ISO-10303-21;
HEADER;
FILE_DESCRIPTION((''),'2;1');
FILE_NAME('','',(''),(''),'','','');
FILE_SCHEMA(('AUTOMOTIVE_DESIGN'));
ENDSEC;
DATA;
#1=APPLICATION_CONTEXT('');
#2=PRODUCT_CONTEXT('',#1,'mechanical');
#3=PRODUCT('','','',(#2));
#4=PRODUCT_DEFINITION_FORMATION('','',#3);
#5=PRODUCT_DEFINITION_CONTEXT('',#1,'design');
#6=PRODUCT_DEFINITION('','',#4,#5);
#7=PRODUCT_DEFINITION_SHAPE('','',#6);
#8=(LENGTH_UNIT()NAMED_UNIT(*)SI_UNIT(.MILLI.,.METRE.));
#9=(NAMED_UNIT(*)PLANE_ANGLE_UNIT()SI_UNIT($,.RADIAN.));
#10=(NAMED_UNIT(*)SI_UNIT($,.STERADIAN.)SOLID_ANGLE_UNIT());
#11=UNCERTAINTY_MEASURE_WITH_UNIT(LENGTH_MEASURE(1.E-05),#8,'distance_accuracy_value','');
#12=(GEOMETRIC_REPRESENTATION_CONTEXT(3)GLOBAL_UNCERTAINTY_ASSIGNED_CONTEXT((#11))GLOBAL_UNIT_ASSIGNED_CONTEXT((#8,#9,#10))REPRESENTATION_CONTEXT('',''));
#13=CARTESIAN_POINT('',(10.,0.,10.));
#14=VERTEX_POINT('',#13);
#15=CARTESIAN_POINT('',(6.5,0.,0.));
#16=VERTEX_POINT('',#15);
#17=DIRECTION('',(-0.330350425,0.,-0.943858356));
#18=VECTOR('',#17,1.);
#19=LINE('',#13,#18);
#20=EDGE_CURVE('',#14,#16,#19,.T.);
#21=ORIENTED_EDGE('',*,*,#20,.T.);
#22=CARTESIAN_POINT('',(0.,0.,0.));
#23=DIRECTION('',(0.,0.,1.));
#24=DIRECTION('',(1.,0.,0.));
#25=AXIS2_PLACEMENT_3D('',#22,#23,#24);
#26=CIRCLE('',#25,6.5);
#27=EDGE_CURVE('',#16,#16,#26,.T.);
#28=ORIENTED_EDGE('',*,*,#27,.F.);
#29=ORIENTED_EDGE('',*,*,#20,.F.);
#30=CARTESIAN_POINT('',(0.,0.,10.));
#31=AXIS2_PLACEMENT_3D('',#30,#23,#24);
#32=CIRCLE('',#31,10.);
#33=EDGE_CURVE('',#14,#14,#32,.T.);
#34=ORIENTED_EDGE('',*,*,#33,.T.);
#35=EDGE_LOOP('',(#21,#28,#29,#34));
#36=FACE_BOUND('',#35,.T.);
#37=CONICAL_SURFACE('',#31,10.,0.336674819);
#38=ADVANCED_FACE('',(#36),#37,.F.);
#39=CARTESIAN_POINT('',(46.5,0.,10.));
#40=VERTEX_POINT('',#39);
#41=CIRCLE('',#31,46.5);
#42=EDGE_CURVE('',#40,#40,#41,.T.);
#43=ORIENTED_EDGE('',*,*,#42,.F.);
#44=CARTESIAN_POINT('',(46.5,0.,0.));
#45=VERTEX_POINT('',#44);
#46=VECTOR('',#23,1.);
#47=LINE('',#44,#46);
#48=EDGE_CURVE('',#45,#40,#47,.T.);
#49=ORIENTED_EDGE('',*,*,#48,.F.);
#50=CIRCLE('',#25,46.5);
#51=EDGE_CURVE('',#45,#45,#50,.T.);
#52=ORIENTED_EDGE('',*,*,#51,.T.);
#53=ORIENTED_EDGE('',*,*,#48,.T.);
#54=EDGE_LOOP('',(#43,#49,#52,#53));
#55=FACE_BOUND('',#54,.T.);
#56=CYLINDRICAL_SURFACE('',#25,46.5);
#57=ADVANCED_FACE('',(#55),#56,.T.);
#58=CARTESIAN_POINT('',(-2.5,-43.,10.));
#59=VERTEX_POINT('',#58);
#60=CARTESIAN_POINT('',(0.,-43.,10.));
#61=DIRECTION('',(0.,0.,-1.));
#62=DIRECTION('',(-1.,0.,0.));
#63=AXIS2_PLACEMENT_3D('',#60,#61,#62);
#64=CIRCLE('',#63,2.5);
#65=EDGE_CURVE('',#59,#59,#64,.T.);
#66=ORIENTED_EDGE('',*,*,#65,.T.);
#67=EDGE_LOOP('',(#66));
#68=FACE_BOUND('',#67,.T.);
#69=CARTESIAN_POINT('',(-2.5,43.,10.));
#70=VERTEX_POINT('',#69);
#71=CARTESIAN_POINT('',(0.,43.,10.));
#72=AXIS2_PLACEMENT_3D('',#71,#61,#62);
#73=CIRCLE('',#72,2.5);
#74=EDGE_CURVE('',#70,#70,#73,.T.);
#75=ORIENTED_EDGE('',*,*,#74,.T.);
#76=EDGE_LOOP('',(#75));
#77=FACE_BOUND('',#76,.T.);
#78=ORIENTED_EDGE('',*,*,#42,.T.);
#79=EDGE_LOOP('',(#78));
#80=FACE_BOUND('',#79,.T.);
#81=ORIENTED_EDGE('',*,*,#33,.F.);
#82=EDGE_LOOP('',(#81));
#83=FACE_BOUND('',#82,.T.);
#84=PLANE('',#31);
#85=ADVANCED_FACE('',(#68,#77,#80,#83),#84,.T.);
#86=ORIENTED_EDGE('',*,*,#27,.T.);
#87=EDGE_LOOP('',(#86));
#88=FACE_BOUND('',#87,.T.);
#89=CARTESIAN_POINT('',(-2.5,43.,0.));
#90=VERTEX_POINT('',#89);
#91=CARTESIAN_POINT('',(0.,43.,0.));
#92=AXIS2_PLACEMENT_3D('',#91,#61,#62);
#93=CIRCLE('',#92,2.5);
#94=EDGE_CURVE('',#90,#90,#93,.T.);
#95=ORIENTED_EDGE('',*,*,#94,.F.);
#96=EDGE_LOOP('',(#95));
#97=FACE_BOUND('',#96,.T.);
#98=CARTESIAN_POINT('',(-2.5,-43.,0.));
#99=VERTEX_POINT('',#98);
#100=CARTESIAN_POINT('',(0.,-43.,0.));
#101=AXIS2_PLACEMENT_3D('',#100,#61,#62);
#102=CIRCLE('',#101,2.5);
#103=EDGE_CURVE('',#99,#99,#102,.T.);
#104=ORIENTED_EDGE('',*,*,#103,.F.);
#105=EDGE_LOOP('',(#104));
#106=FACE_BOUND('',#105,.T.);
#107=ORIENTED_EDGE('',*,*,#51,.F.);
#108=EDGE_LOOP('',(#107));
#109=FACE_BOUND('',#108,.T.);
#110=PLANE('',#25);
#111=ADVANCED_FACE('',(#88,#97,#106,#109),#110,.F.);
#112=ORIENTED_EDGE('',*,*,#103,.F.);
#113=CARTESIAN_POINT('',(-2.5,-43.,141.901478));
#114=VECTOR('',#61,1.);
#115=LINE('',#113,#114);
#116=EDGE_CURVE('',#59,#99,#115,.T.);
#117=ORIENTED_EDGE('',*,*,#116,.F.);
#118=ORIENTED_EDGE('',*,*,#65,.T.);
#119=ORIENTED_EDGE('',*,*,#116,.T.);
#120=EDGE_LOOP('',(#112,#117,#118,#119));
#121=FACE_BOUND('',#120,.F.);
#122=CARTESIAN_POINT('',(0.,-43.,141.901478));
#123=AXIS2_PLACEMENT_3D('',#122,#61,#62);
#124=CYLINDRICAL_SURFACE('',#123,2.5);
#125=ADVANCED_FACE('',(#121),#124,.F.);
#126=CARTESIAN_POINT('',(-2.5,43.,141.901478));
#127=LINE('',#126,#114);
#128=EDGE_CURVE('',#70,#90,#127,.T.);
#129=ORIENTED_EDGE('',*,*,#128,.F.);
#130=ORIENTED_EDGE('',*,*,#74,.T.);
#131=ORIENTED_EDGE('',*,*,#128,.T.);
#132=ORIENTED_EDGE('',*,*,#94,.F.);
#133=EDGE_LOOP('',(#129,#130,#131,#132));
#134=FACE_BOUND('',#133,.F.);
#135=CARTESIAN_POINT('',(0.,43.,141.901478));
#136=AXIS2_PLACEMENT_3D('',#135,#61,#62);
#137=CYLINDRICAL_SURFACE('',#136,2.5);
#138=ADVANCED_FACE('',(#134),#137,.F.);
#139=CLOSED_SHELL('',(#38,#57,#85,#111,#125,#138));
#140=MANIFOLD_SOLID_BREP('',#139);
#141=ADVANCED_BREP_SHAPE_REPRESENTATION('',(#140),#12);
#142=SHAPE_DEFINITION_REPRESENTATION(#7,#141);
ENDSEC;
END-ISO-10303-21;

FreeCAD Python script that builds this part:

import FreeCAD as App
import Part
import Sketcher

doc = App.newDocument("Part")
body = doc.addObject("PartDesign::Body", "Body")

sketch1 = body.newObject("Sketcher::SketchObject", "Sketch")
sketch1.AttachmentSupport = (doc.getObject("XZ_Plane"), [""])
sketch1.MapMode = "FlatFace"
sketch1.addGeometry(Part.LineSegment(App.Vector(6.5, 0, 0), App.Vector(46.5, 0, 0)), False)
sketch1.addGeometry(Part.LineSegment(App.Vector(46.5, 0, 0), App.Vector(46.5, 10, 0)), False)
sketch1.addGeometry(Part.LineSegment(App.Vector(46.5, 10, 0), App.Vector(10, 10, 0)), False)
sketch1.addGeometry(Part.LineSegment(App.Vector(10, 10, 0), App.Vector(6.5, 0, 0)), False)
sketch1.addConstraint(Sketcher.Constraint("Coincident", 0, 2, 1, 1))
sketch1.addConstraint(Sketcher.Constraint("Coincident", 1, 2, 2, 1))
sketch1.addConstraint(Sketcher.Constraint("Coincident", 2, 2, 3, 1))
sketch1.addConstraint(Sketcher.Constraint("Coincident", 3, 2, 0, 1))
sketch1.addConstraint(Sketcher.Constraint("Horizontal", 0))
sketch1.addConstraint(Sketcher.Constraint("Vertical", 1))
sketch1.addConstraint(Sketcher.Constraint("Horizontal", 2))
sketch1.addConstraint(Sketcher.Constraint("PointOnObject", 0, 2, -1))
sketch1.addConstraint(Sketcher.Constraint("DistanceX", 0, 1, 0, 2, 40.0))
sketch1.addConstraint(Sketcher.Constraint("DistanceY", 1, 1, 1, 2, 10.0))
sketch1.addConstraint(Sketcher.Constraint("DistanceX", 2, 2, 2, 1, 36.5))
sketch1.addConstraint(Sketcher.Constraint("DistanceX", -1, 1, 2, 2, 10.0))
revolution = body.newObject("PartDesign::Revolution", "Revolution")
revolution.Profile = sketch1
revolution.ReferenceAxis = (sketch1, ["V_Axis"])
revolution.Angle = 360

sketch2 = body.newObject("Sketcher::SketchObject", "Sketch001")
sketch2.AttachmentSupport = (doc.getObject("XY_Plane"), [""])
sketch2.MapMode = "FlatFace"
sketch2.AttachmentOffset = App.Placement(App.Vector(0, 0, 10), App.Rotation())
sketch2.addGeometry(Part.Circle(App.Vector(0, -43, 0), App.Vector(0, 0, 1), 2.5), False)
sketch2.addGeometry(Part.Circle(App.Vector(0, 43, 0), App.Vector(0, 0, 1), 2.5), False)
sketch2.addConstraint(Sketcher.Constraint("Equal", 0, 1))
sketch2.addConstraint(Sketcher.Constraint("Symmetric", 0, 3, 1, 3, -1, 1))
sketch2.addConstraint(Sketcher.Constraint("PointOnObject", 0, 3, -2))
sketch2.addConstraint(Sketcher.Constraint("Diameter", 0, 5.0))
sketch2.addConstraint(Sketcher.Constraint("DistanceY", 0, 3, -1, 1, 43.0))
doc.recompute()
hole = body.newObject("PartDesign::Hole", "Hole")
hole.Profile = sketch2
hole.ThreadType = "None"
hole.Diameter = 5
hole.DepthType = "ThroughAll"

doc.recompute()
